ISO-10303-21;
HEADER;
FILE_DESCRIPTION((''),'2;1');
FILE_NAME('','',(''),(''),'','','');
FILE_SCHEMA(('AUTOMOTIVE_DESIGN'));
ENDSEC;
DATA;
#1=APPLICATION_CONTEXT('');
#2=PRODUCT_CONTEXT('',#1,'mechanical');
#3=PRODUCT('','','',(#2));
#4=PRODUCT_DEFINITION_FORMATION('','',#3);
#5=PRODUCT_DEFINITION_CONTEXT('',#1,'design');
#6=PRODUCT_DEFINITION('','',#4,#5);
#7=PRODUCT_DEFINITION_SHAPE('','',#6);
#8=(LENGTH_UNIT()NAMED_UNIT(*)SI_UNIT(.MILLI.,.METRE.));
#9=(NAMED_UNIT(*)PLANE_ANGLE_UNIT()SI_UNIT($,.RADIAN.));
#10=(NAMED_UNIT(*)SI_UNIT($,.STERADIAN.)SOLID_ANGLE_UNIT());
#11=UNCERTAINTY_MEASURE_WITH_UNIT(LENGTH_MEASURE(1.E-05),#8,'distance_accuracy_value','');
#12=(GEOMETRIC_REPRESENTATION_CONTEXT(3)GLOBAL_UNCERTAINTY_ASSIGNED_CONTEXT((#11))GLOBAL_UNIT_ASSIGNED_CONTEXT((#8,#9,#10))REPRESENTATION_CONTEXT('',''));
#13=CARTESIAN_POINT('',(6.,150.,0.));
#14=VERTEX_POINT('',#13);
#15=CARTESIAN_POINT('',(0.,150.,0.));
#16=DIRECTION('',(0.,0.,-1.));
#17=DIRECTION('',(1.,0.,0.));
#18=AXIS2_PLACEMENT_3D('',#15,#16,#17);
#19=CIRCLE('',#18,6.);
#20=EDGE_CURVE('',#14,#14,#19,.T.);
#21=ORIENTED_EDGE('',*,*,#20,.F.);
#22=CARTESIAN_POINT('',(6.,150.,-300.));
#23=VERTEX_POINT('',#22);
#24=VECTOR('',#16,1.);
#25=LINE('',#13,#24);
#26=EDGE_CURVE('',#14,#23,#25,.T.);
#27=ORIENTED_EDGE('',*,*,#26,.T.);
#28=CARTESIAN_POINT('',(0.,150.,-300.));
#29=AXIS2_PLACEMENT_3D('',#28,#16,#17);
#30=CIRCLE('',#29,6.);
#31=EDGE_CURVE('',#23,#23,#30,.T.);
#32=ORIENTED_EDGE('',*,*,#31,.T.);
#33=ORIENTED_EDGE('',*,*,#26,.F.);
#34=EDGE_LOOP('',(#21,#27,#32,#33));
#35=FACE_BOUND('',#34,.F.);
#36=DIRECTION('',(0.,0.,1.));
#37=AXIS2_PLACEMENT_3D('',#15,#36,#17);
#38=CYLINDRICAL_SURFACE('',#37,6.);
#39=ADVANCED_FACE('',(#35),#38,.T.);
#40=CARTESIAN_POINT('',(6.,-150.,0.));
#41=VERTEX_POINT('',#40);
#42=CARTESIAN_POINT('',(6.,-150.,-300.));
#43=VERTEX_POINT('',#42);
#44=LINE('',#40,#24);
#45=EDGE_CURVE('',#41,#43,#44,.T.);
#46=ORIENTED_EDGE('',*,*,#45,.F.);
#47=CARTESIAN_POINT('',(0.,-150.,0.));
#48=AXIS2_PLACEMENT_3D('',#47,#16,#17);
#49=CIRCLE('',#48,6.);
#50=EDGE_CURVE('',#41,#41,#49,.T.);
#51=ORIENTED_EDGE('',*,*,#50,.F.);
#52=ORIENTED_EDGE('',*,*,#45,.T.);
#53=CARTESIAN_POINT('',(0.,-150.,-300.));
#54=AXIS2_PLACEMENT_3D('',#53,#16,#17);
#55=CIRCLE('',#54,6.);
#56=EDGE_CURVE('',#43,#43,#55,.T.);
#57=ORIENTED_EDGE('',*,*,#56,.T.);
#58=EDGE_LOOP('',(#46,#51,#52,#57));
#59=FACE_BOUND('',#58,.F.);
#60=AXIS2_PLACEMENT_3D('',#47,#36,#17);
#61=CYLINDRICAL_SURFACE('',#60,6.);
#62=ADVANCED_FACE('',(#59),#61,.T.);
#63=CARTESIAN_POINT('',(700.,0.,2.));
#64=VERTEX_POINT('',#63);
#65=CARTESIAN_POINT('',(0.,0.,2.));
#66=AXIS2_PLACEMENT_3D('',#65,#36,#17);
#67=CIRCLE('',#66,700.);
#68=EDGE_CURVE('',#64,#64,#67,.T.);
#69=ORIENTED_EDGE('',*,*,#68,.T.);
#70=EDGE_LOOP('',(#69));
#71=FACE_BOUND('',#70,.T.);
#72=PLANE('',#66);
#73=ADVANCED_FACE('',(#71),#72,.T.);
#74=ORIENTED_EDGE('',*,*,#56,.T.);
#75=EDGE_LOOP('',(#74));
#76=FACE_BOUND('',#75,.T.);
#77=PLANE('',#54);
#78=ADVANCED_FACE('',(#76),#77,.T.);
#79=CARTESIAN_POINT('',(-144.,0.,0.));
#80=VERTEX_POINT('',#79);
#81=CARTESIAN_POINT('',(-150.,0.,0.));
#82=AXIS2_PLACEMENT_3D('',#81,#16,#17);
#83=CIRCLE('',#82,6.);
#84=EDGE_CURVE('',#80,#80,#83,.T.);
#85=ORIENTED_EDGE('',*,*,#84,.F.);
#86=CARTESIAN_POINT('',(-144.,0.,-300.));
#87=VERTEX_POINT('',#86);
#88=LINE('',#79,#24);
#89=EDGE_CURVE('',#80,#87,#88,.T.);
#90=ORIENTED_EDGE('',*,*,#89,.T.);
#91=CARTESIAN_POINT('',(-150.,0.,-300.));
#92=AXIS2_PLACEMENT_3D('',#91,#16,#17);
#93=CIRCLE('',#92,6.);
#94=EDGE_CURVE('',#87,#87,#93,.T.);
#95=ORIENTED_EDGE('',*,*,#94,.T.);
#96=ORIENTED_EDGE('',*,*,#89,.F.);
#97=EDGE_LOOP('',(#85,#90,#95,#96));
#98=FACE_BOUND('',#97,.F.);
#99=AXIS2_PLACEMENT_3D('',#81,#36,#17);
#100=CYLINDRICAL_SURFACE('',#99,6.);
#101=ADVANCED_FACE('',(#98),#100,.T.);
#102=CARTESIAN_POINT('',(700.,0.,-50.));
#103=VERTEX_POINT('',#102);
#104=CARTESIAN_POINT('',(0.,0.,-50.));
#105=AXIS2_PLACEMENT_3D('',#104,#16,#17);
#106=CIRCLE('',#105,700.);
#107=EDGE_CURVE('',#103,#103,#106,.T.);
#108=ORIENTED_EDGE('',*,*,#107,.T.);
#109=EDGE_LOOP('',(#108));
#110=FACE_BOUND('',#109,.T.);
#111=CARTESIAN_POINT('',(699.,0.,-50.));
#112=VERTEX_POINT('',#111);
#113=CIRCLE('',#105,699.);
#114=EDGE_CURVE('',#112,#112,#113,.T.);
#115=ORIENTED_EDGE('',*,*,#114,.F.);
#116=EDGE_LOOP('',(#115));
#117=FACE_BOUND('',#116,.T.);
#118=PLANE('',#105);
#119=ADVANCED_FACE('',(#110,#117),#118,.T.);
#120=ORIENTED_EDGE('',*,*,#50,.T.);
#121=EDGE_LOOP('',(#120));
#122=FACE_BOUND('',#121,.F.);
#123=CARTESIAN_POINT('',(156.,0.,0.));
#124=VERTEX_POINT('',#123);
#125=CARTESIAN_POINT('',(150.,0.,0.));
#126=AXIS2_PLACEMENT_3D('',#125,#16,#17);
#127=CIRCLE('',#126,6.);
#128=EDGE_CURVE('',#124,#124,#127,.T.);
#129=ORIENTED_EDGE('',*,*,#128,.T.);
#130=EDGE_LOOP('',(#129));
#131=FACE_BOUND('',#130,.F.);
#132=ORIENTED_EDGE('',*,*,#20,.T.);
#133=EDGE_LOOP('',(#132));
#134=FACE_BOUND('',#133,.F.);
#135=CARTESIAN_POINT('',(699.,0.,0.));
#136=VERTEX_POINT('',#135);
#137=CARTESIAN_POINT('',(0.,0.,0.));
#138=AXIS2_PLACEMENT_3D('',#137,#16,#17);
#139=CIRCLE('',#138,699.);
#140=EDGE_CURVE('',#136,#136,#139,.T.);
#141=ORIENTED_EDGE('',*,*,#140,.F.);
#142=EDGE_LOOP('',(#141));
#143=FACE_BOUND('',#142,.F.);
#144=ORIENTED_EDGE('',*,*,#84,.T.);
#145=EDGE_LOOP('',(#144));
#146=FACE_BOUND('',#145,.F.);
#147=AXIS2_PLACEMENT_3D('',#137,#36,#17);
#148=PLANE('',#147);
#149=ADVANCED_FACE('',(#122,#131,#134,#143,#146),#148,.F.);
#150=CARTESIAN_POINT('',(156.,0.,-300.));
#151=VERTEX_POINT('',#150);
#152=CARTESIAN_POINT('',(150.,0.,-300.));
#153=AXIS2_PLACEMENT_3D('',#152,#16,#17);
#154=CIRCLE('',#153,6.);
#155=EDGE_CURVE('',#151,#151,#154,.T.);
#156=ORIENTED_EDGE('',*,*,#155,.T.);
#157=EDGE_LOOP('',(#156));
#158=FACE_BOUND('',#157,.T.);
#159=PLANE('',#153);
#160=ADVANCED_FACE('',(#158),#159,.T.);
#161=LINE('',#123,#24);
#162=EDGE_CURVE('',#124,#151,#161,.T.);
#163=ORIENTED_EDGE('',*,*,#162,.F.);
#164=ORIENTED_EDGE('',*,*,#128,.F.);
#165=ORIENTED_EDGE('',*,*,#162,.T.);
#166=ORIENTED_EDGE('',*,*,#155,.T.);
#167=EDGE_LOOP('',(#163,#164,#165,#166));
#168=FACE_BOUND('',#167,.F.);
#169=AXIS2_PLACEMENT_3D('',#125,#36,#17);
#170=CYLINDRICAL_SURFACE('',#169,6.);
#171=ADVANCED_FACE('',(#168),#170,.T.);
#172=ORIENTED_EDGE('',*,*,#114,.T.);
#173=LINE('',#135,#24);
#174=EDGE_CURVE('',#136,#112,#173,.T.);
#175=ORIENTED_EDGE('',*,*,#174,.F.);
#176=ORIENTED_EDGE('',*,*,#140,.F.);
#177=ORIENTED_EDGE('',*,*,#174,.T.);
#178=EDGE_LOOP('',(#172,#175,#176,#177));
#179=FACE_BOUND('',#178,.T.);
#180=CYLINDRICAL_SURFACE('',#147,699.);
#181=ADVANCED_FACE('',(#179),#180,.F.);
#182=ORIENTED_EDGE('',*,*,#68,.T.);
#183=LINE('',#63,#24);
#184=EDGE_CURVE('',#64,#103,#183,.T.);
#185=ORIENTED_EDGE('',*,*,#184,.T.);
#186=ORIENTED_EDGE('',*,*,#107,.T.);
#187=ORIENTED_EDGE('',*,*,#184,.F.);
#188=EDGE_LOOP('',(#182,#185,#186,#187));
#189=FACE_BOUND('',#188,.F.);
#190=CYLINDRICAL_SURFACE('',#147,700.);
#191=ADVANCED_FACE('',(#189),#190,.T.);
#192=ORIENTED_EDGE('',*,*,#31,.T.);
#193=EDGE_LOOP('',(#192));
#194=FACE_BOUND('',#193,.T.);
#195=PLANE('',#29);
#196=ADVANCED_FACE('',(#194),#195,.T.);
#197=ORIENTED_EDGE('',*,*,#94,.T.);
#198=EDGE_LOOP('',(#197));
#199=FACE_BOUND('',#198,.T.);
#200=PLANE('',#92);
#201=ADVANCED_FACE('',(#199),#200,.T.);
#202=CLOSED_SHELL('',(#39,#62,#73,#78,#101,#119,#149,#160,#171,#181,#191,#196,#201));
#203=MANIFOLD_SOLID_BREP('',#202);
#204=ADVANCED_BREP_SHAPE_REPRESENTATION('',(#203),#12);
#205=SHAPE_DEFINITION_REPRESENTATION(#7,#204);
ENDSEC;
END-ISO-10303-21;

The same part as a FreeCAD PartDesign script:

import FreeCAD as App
import Part
import Sketcher

V = App.Vector

doc = App.newDocument("Part")
params = doc.addObject("Spreadsheet::Sheet", "Params")
for row, (alias, value) in enumerate([
    ("sketch1_diameter", "1400 mm"),
    ("pad1_length", "2 mm"),
    ("sketch2_diameter", "1400 mm"),
    ("sketch2_diameter2", "1398 mm"),
    ("pad2_length", "50 mm"),
    ("sketch3_diameter", "12 mm"),
    ("pad3_length", "300 mm"),
], start=1):
    params.set(f"A{row}", alias)
    params.set(f"B{row}", "=" + value)
    params.setAlias(f"B{row}", alias)

body = doc.addObject("PartDesign::Body", "Body")

# Sketch on XY plane
sketch1 = doc.addObject("Sketcher::SketchObject", "Sketch")
body.addObject(sketch1)
sketch1.AttachmentSupport = (doc.XY_Plane, [""])
sketch1.MapMode = "FlatFace"
sketch1.addGeometry(Part.Circle(V(0, 0, 0), V(0, 0, 1), 700), False)
sketch1.addConstraint(Sketcher.Constraint("Coincident", 0, 3, -1, 1))
sketch1.addConstraint(Sketcher.Constraint("Diameter", 0, 1400.0))
sketch1.setExpression("Constraints[1]", "Params.sketch1_diameter")
pad1 = doc.addObject("PartDesign::Pad", "Pad")
body.addObject(pad1)
pad1.Profile = sketch1
pad1.setExpression("Length", "Params.pad1_length")

# Sketch on XY plane
sketch2 = doc.addObject("Sketcher::SketchObject", "Sketch001")
body.addObject(sketch2)
sketch2.AttachmentSupport = (doc.XY_Plane, [""])
sketch2.MapMode = "FlatFace"
sketch2.addGeometry(Part.Circle(V(0, 0, 0), V(0, 0, 1), 700), False)
sketch2.addGeometry(Part.Circle(V(0, 0, 0), V(0, 0, 1), 699), False)
sketch2.addConstraint(Sketcher.Constraint("Coincident", 0, 3, -1, 1))
sketch2.addConstraint(Sketcher.Constraint("Coincident", 1, 3, -1, 1))
sketch2.addConstraint(Sketcher.Constraint("Diameter", 0, 1400.0))
sketch2.addConstraint(Sketcher.Constraint("Diameter", 1, 1398.0))
sketch2.setExpression("Constraints[2]", "Params.sketch2_diameter")
sketch2.setExpression("Constraints[3]", "Params.sketch2_diameter2")
pad2 = doc.addObject("PartDesign::Pad", "Pad001")
body.addObject(pad2)
pad2.Profile = sketch2
pad2.setExpression("Length", "Params.pad2_length")
pad2.Reversed = True

# Sketch on XY plane
sketch3 = doc.addObject("Sketcher::SketchObject", "Sketch002")
body.addObject(sketch3)
sketch3.AttachmentSupport = (doc.XY_Plane, [""])
sketch3.MapMode = "FlatFace"
sketch3.addGeometry(Part.Circle(V(-150, 0, 0), V(0, 0, 1), 6), False)
sketch3.addGeometry(Part.Circle(V(0, -150, 0), V(0, 0, 1), 6), False)
sketch3.addGeometry(Part.Circle(V(150, 0, 0), V(0, 0, 1), 6), False)
sketch3.addGeometry(Part.Circle(V(0, 150, 0), V(0, 0, 1), 6), False)
sketch3.addConstraint(Sketcher.Constraint("Equal", 0, 1))
sketch3.addConstraint(Sketcher.Constraint("Equal", 1, 2))
sketch3.addConstraint(Sketcher.Constraint("Equal", 2, 3))
sketch3.addConstraint(Sketcher.Constraint("Symmetric", 0, 3, 2, 3, -1, 1))
sketch3.addConstraint(Sketcher.Constraint("Symmetric", 1, 3, 3, 3, -1, 1))
sketch3.addConstraint(Sketcher.Constraint("PointOnObject", 0, 3, -1))
sketch3.addConstraint(Sketcher.Constraint("PointOnObject", 1, 3, -2))
sketch3.addConstraint(Sketcher.Constraint("Diameter", 0, 12.0))
sketch3.addConstraint(Sketcher.Constraint("DistanceX", 0, 3, -1, 1, 150.0))
sketch3.addConstraint(Sketcher.Constraint("DistanceY", 1, 3, -1, 1, 150.0))
sketch3.setExpression("Constraints[7]", "Params.sketch3_diameter")
pad3 = doc.addObject("PartDesign::Pad", "Pad002")
body.addObject(pad3)
pad3.Profile = sketch3
pad3.setExpression("Length", "Params.pad3_length")
pad3.Reversed = True

doc.recompute()
